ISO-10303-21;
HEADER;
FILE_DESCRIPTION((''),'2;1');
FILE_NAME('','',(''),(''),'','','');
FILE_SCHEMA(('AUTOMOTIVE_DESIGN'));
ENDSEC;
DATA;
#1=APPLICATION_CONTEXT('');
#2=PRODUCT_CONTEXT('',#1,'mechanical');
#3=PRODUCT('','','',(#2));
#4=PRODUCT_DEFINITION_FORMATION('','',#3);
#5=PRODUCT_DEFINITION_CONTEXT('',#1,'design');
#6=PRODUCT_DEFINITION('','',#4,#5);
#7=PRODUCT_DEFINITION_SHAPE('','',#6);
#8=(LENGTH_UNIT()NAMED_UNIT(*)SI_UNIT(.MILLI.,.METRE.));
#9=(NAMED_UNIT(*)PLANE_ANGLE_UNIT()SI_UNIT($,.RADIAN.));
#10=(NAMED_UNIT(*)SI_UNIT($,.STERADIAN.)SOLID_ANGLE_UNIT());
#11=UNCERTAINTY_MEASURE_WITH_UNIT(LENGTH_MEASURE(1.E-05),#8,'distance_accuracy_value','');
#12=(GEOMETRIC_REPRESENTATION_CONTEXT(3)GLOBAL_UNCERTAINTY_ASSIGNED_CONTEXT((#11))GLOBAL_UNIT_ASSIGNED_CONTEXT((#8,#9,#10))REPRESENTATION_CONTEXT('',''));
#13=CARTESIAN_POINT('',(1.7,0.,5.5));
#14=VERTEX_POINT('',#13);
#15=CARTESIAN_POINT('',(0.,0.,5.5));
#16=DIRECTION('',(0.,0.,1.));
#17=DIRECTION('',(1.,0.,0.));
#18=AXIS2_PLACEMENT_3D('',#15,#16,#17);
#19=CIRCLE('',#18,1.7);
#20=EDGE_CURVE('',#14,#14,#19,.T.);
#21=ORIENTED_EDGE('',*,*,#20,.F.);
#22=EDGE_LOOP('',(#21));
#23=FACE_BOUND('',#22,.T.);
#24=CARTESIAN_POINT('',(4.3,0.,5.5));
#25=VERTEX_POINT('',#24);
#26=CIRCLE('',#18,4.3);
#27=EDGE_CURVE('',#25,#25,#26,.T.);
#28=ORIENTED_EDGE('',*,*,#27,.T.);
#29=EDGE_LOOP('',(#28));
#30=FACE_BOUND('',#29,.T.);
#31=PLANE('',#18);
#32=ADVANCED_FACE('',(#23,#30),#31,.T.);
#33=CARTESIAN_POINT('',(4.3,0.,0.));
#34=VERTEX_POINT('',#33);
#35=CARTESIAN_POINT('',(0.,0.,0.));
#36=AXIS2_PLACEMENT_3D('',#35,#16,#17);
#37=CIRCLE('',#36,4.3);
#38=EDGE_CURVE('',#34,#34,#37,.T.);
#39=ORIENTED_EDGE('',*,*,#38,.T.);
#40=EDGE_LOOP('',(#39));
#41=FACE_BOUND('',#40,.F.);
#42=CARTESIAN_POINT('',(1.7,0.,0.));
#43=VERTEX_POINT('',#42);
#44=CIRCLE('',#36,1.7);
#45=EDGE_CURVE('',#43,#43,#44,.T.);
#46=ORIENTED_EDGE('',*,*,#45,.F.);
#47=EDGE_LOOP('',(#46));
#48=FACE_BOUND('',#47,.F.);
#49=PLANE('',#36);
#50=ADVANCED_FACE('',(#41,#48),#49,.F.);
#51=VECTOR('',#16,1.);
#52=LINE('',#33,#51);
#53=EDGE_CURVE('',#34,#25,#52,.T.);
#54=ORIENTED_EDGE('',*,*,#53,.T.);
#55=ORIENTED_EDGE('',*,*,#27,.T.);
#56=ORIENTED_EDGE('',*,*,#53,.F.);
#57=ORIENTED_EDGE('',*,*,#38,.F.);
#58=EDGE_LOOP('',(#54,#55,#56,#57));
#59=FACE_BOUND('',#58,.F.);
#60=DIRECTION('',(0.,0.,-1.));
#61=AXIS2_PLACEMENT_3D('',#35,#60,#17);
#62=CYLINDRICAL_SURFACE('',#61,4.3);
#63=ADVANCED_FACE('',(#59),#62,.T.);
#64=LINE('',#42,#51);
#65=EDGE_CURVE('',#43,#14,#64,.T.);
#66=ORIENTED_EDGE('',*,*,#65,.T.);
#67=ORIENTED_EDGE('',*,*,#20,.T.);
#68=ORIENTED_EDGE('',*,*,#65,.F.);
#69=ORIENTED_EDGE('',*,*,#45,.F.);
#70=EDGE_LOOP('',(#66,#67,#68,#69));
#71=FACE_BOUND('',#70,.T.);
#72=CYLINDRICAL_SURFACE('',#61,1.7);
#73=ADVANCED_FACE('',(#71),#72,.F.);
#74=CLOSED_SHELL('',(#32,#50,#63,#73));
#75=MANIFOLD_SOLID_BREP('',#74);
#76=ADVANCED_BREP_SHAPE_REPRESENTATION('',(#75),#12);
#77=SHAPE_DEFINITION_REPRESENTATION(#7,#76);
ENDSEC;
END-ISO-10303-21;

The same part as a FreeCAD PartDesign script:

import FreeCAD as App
import Part
import Sketcher
Q = App.Units.Quantity

doc = App.newDocument("Part")
body = doc.addObject("PartDesign::Body", "Body")

sketch1 = body.newObject("Sketcher::SketchObject", "Sketch")
sketch1.AttachmentSupport = (doc.getObject("XY_Plane"), [""])
sketch1.MapMode = "FlatFace"
sketch1.addGeometry([
    Part.Circle(App.Vector(0, 0, 0), App.Vector(0, 0, 1), 4.3),
    Part.Circle(App.Vector(0, 0, 0), App.Vector(0, 0, 1), 1.7),
], False)
sketch1.addConstraint([
    Sketcher.Constraint("Coincident", 0, 3, -1, 1),
    Sketcher.Constraint("Coincident", 1, 3, -1, 1),
    Sketcher.Constraint("Diameter", 0, Q("8.6 mm")),
    Sketcher.Constraint("Diameter", 1, Q("3.4 mm")),
])
pad1 = body.newObject("PartDesign::Pad", "Pad")
pad1.Profile = sketch1
pad1.Length = 5.5

doc.recompute()
